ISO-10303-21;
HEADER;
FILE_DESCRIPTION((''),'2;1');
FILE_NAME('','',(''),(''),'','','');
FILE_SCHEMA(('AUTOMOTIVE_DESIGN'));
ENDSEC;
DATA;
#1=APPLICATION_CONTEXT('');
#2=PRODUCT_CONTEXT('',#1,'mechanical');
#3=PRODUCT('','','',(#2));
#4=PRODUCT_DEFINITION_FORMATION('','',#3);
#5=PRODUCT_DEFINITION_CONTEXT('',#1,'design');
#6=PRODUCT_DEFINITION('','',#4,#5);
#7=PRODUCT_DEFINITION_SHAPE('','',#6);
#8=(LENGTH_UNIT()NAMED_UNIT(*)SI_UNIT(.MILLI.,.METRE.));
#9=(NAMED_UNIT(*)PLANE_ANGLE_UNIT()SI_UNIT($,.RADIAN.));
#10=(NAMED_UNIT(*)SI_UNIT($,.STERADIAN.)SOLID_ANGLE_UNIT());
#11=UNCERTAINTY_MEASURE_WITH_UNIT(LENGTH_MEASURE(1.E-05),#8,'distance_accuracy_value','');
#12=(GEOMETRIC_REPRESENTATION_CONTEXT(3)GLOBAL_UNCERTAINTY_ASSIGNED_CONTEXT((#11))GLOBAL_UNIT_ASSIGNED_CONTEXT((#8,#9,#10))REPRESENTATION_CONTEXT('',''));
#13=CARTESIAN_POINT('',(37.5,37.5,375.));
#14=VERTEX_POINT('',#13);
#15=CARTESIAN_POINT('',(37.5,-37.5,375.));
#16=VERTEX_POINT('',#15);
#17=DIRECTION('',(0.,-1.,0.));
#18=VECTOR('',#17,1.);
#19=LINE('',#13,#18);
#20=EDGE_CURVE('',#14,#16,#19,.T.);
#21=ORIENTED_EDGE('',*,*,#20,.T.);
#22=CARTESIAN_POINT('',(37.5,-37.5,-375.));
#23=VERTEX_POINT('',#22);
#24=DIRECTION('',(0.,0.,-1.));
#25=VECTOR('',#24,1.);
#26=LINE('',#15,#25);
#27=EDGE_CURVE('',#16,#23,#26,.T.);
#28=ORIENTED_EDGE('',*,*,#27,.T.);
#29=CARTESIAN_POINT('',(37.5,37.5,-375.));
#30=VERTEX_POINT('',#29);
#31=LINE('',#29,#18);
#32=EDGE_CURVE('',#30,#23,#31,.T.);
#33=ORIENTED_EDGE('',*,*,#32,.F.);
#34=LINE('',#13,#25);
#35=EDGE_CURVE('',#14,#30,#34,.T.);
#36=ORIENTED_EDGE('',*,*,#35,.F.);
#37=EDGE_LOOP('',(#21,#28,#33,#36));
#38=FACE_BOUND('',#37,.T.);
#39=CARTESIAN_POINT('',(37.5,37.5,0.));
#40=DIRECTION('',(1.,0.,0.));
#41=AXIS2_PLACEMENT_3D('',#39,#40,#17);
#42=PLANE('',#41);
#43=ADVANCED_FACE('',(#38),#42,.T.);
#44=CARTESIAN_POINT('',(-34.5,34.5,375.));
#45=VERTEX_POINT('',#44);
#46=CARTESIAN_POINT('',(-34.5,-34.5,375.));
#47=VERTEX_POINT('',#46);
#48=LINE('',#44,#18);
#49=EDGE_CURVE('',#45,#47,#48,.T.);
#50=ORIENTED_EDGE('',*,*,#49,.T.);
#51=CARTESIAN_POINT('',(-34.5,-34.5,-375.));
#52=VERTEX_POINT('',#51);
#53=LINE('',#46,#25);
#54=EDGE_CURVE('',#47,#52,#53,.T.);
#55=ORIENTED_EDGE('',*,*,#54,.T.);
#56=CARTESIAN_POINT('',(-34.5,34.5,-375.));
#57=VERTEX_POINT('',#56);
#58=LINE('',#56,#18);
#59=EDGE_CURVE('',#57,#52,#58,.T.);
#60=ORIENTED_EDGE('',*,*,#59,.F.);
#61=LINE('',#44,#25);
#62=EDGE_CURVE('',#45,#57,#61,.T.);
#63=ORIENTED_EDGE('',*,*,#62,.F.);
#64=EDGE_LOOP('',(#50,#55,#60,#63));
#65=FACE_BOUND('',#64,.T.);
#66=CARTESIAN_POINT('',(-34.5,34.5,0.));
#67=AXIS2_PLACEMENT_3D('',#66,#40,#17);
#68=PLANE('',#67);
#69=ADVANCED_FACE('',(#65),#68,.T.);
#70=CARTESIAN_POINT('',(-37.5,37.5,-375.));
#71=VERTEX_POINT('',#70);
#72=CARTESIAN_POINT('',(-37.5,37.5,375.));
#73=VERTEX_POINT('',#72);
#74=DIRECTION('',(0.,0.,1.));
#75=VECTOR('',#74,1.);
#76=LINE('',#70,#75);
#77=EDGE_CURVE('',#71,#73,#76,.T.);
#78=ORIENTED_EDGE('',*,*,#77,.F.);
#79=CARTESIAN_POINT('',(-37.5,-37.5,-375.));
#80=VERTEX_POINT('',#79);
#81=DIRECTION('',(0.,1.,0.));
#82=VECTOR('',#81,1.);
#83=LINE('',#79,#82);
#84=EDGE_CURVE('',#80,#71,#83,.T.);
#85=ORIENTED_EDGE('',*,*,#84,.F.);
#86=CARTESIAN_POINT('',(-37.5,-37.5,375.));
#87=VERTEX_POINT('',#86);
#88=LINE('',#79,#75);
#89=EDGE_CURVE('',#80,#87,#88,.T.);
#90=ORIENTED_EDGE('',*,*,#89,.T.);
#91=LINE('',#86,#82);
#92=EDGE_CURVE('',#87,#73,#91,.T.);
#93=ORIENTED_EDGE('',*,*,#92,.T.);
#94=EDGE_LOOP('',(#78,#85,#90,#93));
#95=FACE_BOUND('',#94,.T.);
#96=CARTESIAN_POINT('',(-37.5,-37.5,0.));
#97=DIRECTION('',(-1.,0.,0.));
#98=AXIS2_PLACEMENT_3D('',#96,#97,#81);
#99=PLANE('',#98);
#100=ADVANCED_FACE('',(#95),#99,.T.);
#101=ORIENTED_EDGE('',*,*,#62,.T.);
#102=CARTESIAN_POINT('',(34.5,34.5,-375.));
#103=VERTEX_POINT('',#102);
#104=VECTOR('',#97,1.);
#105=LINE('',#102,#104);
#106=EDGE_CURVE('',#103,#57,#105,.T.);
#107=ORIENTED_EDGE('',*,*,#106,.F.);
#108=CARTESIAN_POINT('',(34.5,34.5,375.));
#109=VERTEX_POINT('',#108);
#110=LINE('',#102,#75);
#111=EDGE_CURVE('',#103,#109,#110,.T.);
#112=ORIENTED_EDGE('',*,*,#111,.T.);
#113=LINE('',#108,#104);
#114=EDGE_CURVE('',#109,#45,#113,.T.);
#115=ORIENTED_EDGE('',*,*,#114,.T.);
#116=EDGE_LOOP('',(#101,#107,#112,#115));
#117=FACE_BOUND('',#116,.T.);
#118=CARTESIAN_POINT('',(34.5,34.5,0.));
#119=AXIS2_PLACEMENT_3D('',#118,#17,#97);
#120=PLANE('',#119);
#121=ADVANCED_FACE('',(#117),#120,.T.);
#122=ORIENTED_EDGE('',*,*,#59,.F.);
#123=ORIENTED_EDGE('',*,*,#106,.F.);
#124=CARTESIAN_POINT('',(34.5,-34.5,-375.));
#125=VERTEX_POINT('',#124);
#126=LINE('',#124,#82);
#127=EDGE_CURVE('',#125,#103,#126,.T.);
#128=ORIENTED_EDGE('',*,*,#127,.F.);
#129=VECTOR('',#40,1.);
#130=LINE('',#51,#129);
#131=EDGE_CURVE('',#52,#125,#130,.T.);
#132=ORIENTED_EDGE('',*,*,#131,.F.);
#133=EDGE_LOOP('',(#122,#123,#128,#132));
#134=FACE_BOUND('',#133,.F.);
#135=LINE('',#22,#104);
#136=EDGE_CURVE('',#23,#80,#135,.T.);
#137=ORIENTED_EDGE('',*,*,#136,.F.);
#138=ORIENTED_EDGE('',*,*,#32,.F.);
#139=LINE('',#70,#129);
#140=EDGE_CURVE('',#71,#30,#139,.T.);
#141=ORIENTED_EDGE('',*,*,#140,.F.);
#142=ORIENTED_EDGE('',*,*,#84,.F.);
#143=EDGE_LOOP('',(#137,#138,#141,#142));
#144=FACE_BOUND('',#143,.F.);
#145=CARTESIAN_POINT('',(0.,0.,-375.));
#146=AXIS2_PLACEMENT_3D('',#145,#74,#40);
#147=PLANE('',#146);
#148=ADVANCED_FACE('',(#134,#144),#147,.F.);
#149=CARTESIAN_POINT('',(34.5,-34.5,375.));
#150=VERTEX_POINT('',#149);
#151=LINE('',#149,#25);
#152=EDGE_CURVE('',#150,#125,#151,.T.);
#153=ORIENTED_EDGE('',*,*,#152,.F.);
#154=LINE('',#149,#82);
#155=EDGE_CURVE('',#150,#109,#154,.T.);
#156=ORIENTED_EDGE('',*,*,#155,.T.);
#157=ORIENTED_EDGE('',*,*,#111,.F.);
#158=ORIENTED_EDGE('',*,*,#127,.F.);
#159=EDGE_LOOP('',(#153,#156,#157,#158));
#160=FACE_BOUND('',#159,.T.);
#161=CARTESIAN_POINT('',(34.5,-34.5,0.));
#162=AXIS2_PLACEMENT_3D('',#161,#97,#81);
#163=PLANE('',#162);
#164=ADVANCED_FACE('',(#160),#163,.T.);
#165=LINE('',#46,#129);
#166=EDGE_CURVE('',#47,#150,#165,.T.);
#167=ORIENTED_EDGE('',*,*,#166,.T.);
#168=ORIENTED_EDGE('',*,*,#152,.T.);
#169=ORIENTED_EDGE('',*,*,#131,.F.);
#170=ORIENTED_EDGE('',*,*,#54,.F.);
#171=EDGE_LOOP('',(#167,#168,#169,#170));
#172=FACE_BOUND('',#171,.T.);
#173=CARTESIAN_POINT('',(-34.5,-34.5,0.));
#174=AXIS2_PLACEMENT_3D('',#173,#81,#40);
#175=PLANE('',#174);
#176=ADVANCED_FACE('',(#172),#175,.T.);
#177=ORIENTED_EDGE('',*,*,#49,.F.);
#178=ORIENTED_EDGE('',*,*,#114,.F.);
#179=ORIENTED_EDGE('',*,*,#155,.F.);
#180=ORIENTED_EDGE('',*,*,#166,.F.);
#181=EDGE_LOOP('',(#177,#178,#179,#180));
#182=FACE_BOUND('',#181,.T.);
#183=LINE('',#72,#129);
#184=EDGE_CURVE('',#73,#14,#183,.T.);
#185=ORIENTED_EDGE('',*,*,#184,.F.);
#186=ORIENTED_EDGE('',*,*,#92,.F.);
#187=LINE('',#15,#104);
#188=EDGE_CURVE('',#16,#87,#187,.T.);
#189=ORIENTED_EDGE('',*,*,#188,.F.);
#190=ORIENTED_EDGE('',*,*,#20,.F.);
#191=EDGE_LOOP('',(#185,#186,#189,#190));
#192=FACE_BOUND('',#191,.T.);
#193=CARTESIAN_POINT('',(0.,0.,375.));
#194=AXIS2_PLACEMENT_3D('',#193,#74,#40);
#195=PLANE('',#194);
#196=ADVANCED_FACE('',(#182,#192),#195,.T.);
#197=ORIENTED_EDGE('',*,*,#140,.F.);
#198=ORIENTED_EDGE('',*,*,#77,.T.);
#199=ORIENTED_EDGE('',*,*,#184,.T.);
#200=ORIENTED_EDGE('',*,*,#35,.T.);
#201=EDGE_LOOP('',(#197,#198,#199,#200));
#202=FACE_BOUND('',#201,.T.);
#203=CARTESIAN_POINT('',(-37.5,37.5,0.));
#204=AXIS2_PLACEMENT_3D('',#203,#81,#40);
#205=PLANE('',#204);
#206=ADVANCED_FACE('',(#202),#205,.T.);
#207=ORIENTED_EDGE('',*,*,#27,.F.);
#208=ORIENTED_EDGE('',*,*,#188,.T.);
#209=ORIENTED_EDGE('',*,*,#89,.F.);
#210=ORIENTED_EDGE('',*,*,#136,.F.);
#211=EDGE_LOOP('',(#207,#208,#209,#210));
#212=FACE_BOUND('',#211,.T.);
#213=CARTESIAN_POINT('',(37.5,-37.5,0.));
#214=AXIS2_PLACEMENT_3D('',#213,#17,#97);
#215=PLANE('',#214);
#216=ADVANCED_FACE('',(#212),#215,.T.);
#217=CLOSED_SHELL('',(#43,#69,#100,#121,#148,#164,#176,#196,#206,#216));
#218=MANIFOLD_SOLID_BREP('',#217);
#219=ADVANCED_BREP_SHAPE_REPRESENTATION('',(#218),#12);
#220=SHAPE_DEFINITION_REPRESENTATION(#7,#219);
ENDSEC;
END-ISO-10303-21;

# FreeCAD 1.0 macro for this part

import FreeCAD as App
import Part
import Sketcher

V = App.Vector

doc = App.newDocument("Part")
body = doc.addObject("PartDesign::Body", "Body")

sketch1 = doc.addObject("Sketcher::SketchObject", "Sketch")
body.addObject(sketch1)
sketch1.AttachmentSupport = (doc.XY_Plane, [""])
sketch1.MapMode = "FlatFace"
sketch1.addGeometry([
    Part.LineSegment(V(38, 38, 0), V(-38, 38, 0)),
    Part.LineSegment(V(-38, 38, 0), V(-38, -38, 0)),
    Part.LineSegment(V(-38, -38, 0), V(38, -38, 0)),
    Part.LineSegment(V(38, -38, 0), V(38, 38, 0)),
    Part.LineSegment(V(-34, 34, 0), V(34, 34, 0)),
    Part.LineSegment(V(34, 34, 0), V(34, -34, 0)),
    Part.LineSegment(V(34, -34, 0), V(-34, -34, 0)),
    Part.LineSegment(V(-34, -34, 0), V(-34, 34, 0)),
], False)
sketch1.addConstraint([
    Sketcher.Constraint("Coincident", 0, 2, 1, 1),
    Sketcher.Constraint("Coincident", 1, 2, 2, 1),
    Sketcher.Constraint("Coincident", 2, 2, 3, 1),
    Sketcher.Constraint("Coincident", 3, 2, 0, 1),
    Sketcher.Constraint("Coincident", 4, 2, 5, 1),
    Sketcher.Constraint("Coincident", 5, 2, 6, 1),
    Sketcher.Constraint("Coincident", 6, 2, 7, 1),
    Sketcher.Constraint("Coincident", 7, 2, 4, 1),
    Sketcher.Constraint("Horizontal", 0),
    Sketcher.Constraint("Vertical", 1),
    Sketcher.Constraint("Horizontal", 2),
    Sketcher.Constraint("Vertical", 3),
    Sketcher.Constraint("Horizontal", 4),
    Sketcher.Constraint("Vertical", 5),
    Sketcher.Constraint("Horizontal", 6),
    Sketcher.Constraint("Vertical", 7),
    Sketcher.Constraint("Symmetric", 0, 2, 2, 2, -1, 1),
    Sketcher.Constraint("Symmetric", 4, 2, 6, 2, -1, 1),
    Sketcher.Constraint("Equal", 2, 1),
    Sketcher.Constraint("Equal", 6, 5),
    Sketcher.Constraint("DistanceX", 0, 2, 0, 1, 75.0),
    Sketcher.Constraint("DistanceX", 4, 2, 3, 2, 3.0),
])
pad1 = doc.addObject("PartDesign::Pad", "Pad")
body.addObject(pad1)
pad1.Profile = sketch1
pad1.Length = 750
pad1.Midplane = True

doc.recompute()
